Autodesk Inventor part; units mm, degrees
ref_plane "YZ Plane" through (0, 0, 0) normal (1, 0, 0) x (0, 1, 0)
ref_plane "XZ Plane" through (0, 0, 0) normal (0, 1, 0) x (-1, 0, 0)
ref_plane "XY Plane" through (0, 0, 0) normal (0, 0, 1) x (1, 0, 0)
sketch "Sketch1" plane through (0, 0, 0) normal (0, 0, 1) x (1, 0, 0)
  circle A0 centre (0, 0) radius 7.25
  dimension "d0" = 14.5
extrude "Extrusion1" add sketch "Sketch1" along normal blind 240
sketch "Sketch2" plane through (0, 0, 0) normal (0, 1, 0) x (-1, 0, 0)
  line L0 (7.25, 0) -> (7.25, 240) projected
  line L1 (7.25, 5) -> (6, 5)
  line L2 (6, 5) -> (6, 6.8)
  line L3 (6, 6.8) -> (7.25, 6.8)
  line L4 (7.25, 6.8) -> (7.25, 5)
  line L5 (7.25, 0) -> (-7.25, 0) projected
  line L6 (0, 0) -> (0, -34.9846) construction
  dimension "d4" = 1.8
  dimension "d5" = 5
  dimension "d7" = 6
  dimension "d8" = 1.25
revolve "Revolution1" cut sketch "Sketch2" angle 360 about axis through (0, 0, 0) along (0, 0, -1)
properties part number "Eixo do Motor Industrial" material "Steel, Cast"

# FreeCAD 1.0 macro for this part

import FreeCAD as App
import Part
import Sketcher

V = App.Vector
Q = App.Units.Quantity


def add_polygon(sketch, points):
    """Adds a closed chain of lines whose ends are joined by coincident constraints."""
    first, n = sketch.GeometryCount, len(points)
    for a, b in zip(points, points[1:] + points[:1]):
        sketch.addGeometry(Part.LineSegment(App.Vector(*a, 0), App.Vector(*b, 0)), False)
    for i in range(n):
        sketch.addConstraint(Sketcher.Constraint("Coincident", first + i, 2, first + (i + 1) % n, 1))

doc = App.newDocument("Part")
body = doc.addObject("PartDesign::Body", "Body")

# Sketch on XY plane
sketch1 = doc.addObject("Sketcher::SketchObject", "Sketch")
body.addObject(sketch1)
sketch1.AttachmentSupport = (doc.XY_Plane, [""])
sketch1.MapMode = "FlatFace"
sketch1.addGeometry(Part.Circle(V(0, 0, 0), V(0, 0, 1), 7), False)
sketch1.addConstraint([
    Sketcher.Constraint("Coincident", 0, 3, -1, 1),
    Sketcher.Constraint("Diameter", 0, Q("14.5 mm")),
])
pad1 = doc.addObject("PartDesign::Pad", "Pad")
body.addObject(pad1)
pad1.Profile = sketch1
pad1.Length = 240

# Sketch on XZ plane
sketch2 = doc.addObject("Sketcher::SketchObject", "Sketch001")
body.addObject(sketch2)
sketch2.AttachmentSupport = (doc.XZ_Plane, [""])
sketch2.MapMode = "FlatFace"
add_polygon(sketch2, [(-6, 5), (-7.2, 5), (-7.2, 6.8), (-6, 6.8)])  # lines 0-3
sketch2.addConstraint([
    Sketcher.Constraint("Horizontal", 0),
    Sketcher.Constraint("Vertical", 1),
    Sketcher.Constraint("Horizontal", 2),
    Sketcher.Constraint("Vertical", 3),
    Sketcher.Constraint("DistanceY", 1, 1, 1, 2, Q("1.8 mm")),
    Sketcher.Constraint("DistanceY", -1, 1, 0, 2, Q("5 mm")),
    Sketcher.Constraint("DistanceX", 2, 2, -1, 1, Q("6 mm")),
    Sketcher.Constraint("DistanceX", 0, 2, 0, 1, Q("1.25 mm")),
])
groove = doc.addObject("PartDesign::Groove", "Groove")
body.addObject(groove)
groove.Profile = sketch2
groove.ReferenceAxis = (sketch2, ["V_Axis"])
groove.Angle = 360

doc.recompute()
